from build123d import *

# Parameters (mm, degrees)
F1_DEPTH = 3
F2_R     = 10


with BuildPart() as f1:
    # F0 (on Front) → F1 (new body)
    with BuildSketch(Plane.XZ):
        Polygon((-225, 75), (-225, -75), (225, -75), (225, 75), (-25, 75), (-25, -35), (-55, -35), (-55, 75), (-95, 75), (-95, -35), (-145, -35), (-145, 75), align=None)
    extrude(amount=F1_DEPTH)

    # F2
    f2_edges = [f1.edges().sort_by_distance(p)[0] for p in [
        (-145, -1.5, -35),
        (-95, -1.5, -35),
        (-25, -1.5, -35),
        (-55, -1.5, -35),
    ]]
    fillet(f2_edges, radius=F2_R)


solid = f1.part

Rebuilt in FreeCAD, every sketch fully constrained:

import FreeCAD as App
import Part
import Sketcher


def edges_at(feature, points):
    """Names of the edges that pass closest to the given points."""
    edges = feature.Shape.Edges
    near = lambda p: min(range(len(edges)), key=lambda i: edges[i].distToShape(Part.Vertex(*p))[0])
    return sorted({f"Edge{near(p) + 1}" for p in points})

doc = App.newDocument("Part")
body = doc.addObject("PartDesign::Body", "Body")

# Sketch on XZ plane
sketch1 = body.newObject("Sketcher::SketchObject", "Sketch")
sketch1.AttachmentSupport = (doc.getObject("XZ_Plane"), [""])
sketch1.MapMode = "FlatFace"
sketch1.addGeometry(Part.LineSegment(App.Vector(-225, 75, 0), App.Vector(-225, -75, 0)), False)
sketch1.addGeometry(Part.LineSegment(App.Vector(-225, -75, 0), App.Vector(225, -75, 0)), False)
sketch1.addGeometry(Part.LineSegment(App.Vector(225, -75, 0), App.Vector(225, 75, 0)), False)
sketch1.addGeometry(Part.LineSegment(App.Vector(225, 75, 0), App.Vector(-25, 75, 0)), False)
sketch1.addGeometry(Part.LineSegment(App.Vector(-25, 75, 0), App.Vector(-25, -35, 0)), False)
sketch1.addGeometry(Part.LineSegment(App.Vector(-25, -35, 0), App.Vector(-55, -35, 0)), False)
sketch1.addGeometry(Part.LineSegment(App.Vector(-55, -35, 0), App.Vector(-55, 75, 0)), False)
sketch1.addGeometry(Part.LineSegment(App.Vector(-55, 75, 0), App.Vector(-95, 75, 0)), False)
sketch1.addGeometry(Part.LineSegment(App.Vector(-95, 75, 0), App.Vector(-95, -35, 0)), False)
sketch1.addGeometry(Part.LineSegment(App.Vector(-95, -35, 0), App.Vector(-145, -35, 0)), False)
sketch1.addGeometry(Part.LineSegment(App.Vector(-145, -35, 0), App.Vector(-145, 75, 0)), False)
sketch1.addGeometry(Part.LineSegment(App.Vector(-145, 75, 0), App.Vector(-225, 75, 0)), False)
sketch1.addConstraint(Sketcher.Constraint("Coincident", 0, 2, 1, 1))
sketch1.addConstraint(Sketcher.Constraint("Coincident", 1, 2, 2, 1))
sketch1.addConstraint(Sketcher.Constraint("Coincident", 2, 2, 3, 1))
sketch1.addConstraint(Sketcher.Constraint("Coincident", 3, 2, 4, 1))
sketch1.addConstraint(Sketcher.Constraint("Coincident", 4, 2, 5, 1))
sketch1.addConstraint(Sketcher.Constraint("Coincident", 5, 2, 6, 1))
sketch1.addConstraint(Sketcher.Constraint("Coincident", 6, 2, 7, 1))
sketch1.addConstraint(Sketcher.Constraint("Coincident", 7, 2, 8, 1))
sketch1.addConstraint(Sketcher.Constraint("Coincident", 8, 2, 9, 1))
sketch1.addConstraint(Sketcher.Constraint("Coincident", 9, 2, 10, 1))
sketch1.addConstraint(Sketcher.Constraint("Coincident", 10, 2, 11, 1))
sketch1.addConstraint(Sketcher.Constraint("Coincident", 11, 2, 0, 1))
sketch1.addConstraint(Sketcher.Constraint("Vertical", 0))
sketch1.addConstraint(Sketcher.Constraint("Horizontal", 1))
sketch1.addConstraint(Sketcher.Constraint("Vertical", 2))
sketch1.addConstraint(Sketcher.Constraint("Horizontal", 3))
sketch1.addConstraint(Sketcher.Constraint("Vertical", 4))
sketch1.addConstraint(Sketcher.Constraint("Horizontal", 5))
sketch1.addConstraint(Sketcher.Constraint("Vertical", 6))
sketch1.addConstraint(Sketcher.Constraint("Horizontal", 7))
sketch1.addConstraint(Sketcher.Constraint("Vertical", 8))
sketch1.addConstraint(Sketcher.Constraint("Horizontal", 9))
sketch1.addConstraint(Sketcher.Constraint("Vertical", 10))
sketch1.addConstraint(Sketcher.Constraint("Horizontal", 11))
sketch1.addConstraint(Sketcher.Constraint("Symmetric", 0, 2, 2, 2, -1, 1))
sketch1.addConstraint(Sketcher.Constraint("Horizontal", 3, 2, 6, 2))
sketch1.addConstraint(Sketcher.Constraint("Horizontal", 5, 2, 8, 2))
sketch1.addConstraint(Sketcher.Constraint("Horizontal", 7, 2, 10, 2))
sketch1.addConstraint(Sketcher.Constraint("DistanceX", 1, 1, 1, 2, 450.0))
sketch1.addConstraint(Sketcher.Constraint("DistanceX", 3, 2, 3, 1, 250.0))
sketch1.addConstraint(Sketcher.Constraint("DistanceX", 5, 2, 5, 1, 30.0))
sketch1.addConstraint(Sketcher.Constraint("DistanceX", 7, 2, 7, 1, 40.0))
sketch1.addConstraint(Sketcher.Constraint("DistanceX", 9, 2, 9, 1, 50.0))
sketch1.addConstraint(Sketcher.Constraint("DistanceY", 0, 2, 0, 1, 150.0))
sketch1.addConstraint(Sketcher.Constraint("DistanceY", 4, 2, 4, 1, 110.0))
pad1 = body.newObject("PartDesign::Pad", "Pad")
pad1.Profile = sketch1
pad1.Length = 3
doc.recompute()

fillet = body.newObject("PartDesign::Fillet", "Fillet")
fillet.Base = (pad1, edges_at(pad1, [
    (-145, -1.5, -35),
    (-95, -1.5, -35),
    (-25, -1.5, -35),
    (-55, -1.5, -35),
]))
fillet.Radius = 10

doc.recompute()
